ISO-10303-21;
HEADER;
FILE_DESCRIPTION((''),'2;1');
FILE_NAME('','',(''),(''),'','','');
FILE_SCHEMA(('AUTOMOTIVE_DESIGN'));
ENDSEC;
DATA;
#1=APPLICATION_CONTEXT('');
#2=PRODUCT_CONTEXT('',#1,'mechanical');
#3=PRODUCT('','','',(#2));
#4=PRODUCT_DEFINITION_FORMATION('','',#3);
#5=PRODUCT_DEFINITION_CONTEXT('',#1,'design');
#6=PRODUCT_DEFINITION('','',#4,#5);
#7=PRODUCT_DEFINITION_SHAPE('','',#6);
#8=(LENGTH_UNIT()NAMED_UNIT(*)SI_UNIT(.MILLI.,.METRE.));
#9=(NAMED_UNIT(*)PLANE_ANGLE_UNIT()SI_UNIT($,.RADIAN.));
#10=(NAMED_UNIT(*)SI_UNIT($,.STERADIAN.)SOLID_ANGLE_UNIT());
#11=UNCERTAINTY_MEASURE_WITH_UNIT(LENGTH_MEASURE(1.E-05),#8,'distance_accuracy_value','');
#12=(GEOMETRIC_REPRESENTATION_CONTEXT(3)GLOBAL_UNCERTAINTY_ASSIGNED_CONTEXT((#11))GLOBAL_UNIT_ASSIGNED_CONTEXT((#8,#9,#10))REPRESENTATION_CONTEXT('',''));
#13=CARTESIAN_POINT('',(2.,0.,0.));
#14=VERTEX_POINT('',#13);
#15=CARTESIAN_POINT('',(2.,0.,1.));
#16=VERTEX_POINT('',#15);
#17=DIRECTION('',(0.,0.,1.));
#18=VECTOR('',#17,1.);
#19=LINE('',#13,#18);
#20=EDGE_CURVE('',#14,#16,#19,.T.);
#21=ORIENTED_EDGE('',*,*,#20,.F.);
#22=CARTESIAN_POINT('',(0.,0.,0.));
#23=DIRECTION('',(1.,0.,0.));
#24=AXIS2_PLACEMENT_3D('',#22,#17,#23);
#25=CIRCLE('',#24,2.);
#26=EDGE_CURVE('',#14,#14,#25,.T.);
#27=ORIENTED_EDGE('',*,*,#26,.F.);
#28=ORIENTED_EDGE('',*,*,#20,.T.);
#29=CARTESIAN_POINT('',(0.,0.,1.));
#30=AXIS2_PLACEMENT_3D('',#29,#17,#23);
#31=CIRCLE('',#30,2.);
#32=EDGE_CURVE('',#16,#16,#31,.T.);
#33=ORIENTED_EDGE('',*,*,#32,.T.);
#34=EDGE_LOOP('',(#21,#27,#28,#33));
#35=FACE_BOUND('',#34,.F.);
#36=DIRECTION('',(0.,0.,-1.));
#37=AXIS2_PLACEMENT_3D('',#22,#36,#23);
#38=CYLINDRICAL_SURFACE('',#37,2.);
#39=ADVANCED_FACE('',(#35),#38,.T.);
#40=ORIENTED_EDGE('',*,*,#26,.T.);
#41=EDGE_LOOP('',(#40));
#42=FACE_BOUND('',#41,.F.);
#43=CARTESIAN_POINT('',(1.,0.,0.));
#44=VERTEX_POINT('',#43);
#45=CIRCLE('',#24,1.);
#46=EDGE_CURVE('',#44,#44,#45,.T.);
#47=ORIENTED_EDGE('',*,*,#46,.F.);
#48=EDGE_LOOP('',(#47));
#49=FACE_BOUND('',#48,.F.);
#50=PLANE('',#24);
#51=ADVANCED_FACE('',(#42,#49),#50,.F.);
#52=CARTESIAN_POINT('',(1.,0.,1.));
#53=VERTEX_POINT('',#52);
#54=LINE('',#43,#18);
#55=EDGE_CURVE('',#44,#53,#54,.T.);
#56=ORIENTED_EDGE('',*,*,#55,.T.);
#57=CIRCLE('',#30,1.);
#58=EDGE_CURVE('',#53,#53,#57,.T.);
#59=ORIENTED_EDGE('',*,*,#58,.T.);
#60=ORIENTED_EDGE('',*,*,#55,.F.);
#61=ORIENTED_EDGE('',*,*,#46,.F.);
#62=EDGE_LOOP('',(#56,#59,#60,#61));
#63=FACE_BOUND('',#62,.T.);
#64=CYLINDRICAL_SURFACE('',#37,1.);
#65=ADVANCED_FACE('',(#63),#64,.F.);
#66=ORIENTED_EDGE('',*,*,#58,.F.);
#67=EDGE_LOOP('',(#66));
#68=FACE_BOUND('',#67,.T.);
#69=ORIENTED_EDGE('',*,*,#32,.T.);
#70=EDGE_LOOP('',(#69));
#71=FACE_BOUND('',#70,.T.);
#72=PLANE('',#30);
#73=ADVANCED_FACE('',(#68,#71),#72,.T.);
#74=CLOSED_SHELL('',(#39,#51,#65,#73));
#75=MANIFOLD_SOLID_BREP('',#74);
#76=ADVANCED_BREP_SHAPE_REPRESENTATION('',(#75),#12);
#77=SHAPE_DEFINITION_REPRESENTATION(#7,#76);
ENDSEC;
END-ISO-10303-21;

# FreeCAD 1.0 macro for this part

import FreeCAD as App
import Part
import Sketcher

doc = App.newDocument("Part")
body = doc.addObject("PartDesign::Body", "Body")

# Sketch on XY plane
sketch1 = doc.addObject("Sketcher::SketchObject", "Sketch")
body.addObject(sketch1)
sketch1.AttachmentSupport = (doc.XY_Plane, [""])
sketch1.MapMode = "FlatFace"
sketch1.addGeometry(Part.Circle(App.Vector(0, 0, 0), App.Vector(0, 0, 1), 2), False)
sketch1.addGeometry(Part.Circle(App.Vector(0, 0, 0), App.Vector(0, 0, 1), 1), False)
sketch1.addConstraint(Sketcher.Constraint("Coincident", 0, 3, -1, 1))
sketch1.addConstraint(Sketcher.Constraint("Coincident", 1, 3, -1, 1))
sketch1.addConstraint(Sketcher.Constraint("Diameter", 0, 4.0))
sketch1.addConstraint(Sketcher.Constraint("Diameter", 1, 2.0))
pad1 = doc.addObject("PartDesign::Pad", "Pad")
body.addObject(pad1)
pad1.Profile = sketch1
pad1.Length = 1

doc.recompute()
